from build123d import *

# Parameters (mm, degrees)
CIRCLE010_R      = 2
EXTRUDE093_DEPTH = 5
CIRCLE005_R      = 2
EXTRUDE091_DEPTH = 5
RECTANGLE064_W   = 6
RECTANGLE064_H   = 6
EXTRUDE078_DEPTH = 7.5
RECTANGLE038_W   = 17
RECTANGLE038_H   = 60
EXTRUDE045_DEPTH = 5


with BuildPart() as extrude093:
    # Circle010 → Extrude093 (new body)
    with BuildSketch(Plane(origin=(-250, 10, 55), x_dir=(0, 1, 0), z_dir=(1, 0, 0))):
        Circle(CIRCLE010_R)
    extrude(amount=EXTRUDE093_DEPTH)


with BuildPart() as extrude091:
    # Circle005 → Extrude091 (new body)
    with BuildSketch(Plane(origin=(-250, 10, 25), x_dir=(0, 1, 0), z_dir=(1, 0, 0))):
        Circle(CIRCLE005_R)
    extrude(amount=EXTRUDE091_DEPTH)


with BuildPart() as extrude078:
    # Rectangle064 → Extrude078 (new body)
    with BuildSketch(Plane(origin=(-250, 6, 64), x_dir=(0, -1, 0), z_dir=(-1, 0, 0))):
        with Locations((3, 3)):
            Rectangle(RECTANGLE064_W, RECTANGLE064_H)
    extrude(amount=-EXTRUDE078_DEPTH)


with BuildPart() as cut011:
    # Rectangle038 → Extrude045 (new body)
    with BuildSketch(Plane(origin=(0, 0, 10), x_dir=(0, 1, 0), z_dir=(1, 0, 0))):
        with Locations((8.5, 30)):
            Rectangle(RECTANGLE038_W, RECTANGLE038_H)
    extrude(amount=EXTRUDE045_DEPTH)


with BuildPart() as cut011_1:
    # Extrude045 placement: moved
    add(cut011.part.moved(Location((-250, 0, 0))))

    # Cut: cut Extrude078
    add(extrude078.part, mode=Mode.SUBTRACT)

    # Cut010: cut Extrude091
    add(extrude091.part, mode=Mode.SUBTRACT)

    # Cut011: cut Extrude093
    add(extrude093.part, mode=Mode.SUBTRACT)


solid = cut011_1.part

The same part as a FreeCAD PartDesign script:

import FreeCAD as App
import Part
import Sketcher
from FreeCAD import Vector
Q = App.Units.Quantity

doc = App.newDocument("Part")
params = doc.addObject("Spreadsheet::Sheet", "Params")
for row, (alias, value) in enumerate([
    ("sketch1_diameter", "4 mm"),
    ("pad1_length", "5 mm"),
    ("sketch2_diameter", "4 mm"),
    ("pad2_length", "5 mm"),
    ("sketch3_width", "6 mm"),
    ("pad3_length", "7.5 mm"),
    ("sketch4_width", "17 mm"),
    ("sketch4_height", "60 mm"),
    ("pad4_length", "5 mm"),
], start=1):
    params.set(f"A{row}", alias)
    params.set(f"B{row}", "=" + value)
    params.setAlias(f"B{row}", alias)

body = doc.addObject("PartDesign::Body", "Body")

# Sketch on YZ plane
sketch1 = body.newObject("Sketcher::SketchObject", "Sketch")
sketch1.AttachmentSupport = (doc.getObject("YZ_Plane"), [""])
sketch1.MapMode = "FlatFace"
sketch1.AttachmentOffset = App.Placement(Vector(0, 0, -250), App.Rotation())
sketch1.addGeometry(Part.Circle(Vector(10, 55, 0), Vector(0, 0, 1), 2), False)
sketch1.addConstraint([
    Sketcher.Constraint("Diameter", 0, Q("4 mm")),
    Sketcher.Constraint("DistanceX", -1, 1, 0, 3, Q("10 mm")),
    Sketcher.Constraint("DistanceY", -1, 1, 0, 3, Q("55 mm")),
])
sketch1.setExpression("Constraints[0]", "Params.sketch1_diameter")
pad1 = body.newObject("PartDesign::Pad", "Pad")
pad1.Profile = sketch1
pad1.setExpression("Length", "Params.pad1_length")
body2 = doc.addObject("PartDesign::Body", "Body001")

# Sketch on YZ plane
sketch2 = body2.newObject("Sketcher::SketchObject", "Sketch001")
sketch2.AttachmentSupport = (doc.getObject("YZ_Plane001"), [""])
sketch2.MapMode = "FlatFace"
sketch2.AttachmentOffset = App.Placement(Vector(0, 0, -250), App.Rotation())
sketch2.addGeometry(Part.Circle(Vector(10, 25, 0), Vector(0, 0, 1), 2), False)
sketch2.addConstraint([
    Sketcher.Constraint("Diameter", 0, Q("4 mm")),
    Sketcher.Constraint("DistanceX", -1, 1, 0, 3, Q("10 mm")),
    Sketcher.Constraint("DistanceY", -1, 1, 0, 3, Q("25 mm")),
])
sketch2.setExpression("Constraints[0]", "Params.sketch2_diameter")
pad2 = body2.newObject("PartDesign::Pad", "Pad001")
pad2.Profile = sketch2
pad2.setExpression("Length", "Params.pad2_length")
body3 = doc.addObject("PartDesign::Body", "Body002")

# Sketch on YZ plane
sketch3 = body3.newObject("Sketcher::SketchObject", "Sketch002")
sketch3.AttachmentSupport = (doc.getObject("YZ_Plane002"), [""])
sketch3.MapMode = "FlatFace"
sketch3.AttachmentOffset = App.Placement(Vector(0, 0, -250), App.Rotation())
sketch3.addGeometry([
    Part.LineSegment(Vector(6, 70, 0), Vector(6, 64, 0)),
    Part.LineSegment(Vector(6, 64, 0), Vector(0, 64, 0)),
    Part.LineSegment(Vector(0, 64, 0), Vector(0, 70, 0)),
    Part.LineSegment(Vector(0, 70, 0), Vector(6, 70, 0)),
], False)
sketch3.addConstraint([
    Sketcher.Constraint("Coincident", 0, 2, 1, 1),
    Sketcher.Constraint("Coincident", 1, 2, 2, 1),
    Sketcher.Constraint("Coincident", 2, 2, 3, 1),
    Sketcher.Constraint("Coincident", 3, 2, 0, 1),
    Sketcher.Constraint("Vertical", 0),
    Sketcher.Constraint("Horizontal", 1),
    Sketcher.Constraint("Vertical", 2),
    Sketcher.Constraint("Horizontal", 3),
    Sketcher.Constraint("PointOnObject", 1, 2, -2),
    Sketcher.Constraint("Equal", 3, 0),
    Sketcher.Constraint("DistanceX", 1, 2, 1, 1, Q("6 mm")),
    Sketcher.Constraint("DistanceY", -1, 1, 0, 2, Q("64 mm")),
])
sketch3.setExpression("Constraints[10]", "Params.sketch3_width")
pad3 = body3.newObject("PartDesign::Pad", "Pad002")
pad3.Profile = sketch3
pad3.setExpression("Length", "Params.pad3_length")
body4 = doc.addObject("PartDesign::Body", "Body003")

# Sketch on YZ plane
sketch4 = body4.newObject("Sketcher::SketchObject", "Sketch003")
sketch4.AttachmentSupport = (doc.getObject("YZ_Plane003"), [""])
sketch4.MapMode = "FlatFace"
sketch4.addGeometry([
    Part.LineSegment(Vector(0, 70, 0), Vector(0, 10, 0)),
    Part.LineSegment(Vector(0, 10, 0), Vector(17, 10, 0)),
    Part.LineSegment(Vector(17, 10, 0), Vector(17, 70, 0)),
    Part.LineSegment(Vector(17, 70, 0), Vector(0, 70, 0)),
], False)
sketch4.addConstraint([
    Sketcher.Constraint("Coincident", 0, 2, 1, 1),
    Sketcher.Constraint("Coincident", 1, 2, 2, 1),
    Sketcher.Constraint("Coincident", 2, 2, 3, 1),
    Sketcher.Constraint("Coincident", 3, 2, 0, 1),
    Sketcher.Constraint("Vertical", 0),
    Sketcher.Constraint("Horizontal", 1),
    Sketcher.Constraint("Vertical", 2),
    Sketcher.Constraint("Horizontal", 3),
    Sketcher.Constraint("PointOnObject", 0, 2, -2),
    Sketcher.Constraint("DistanceX", 1, 1, 1, 2, Q("17 mm")),
    Sketcher.Constraint("DistanceY", 0, 2, 0, 1, Q("60 mm")),
    Sketcher.Constraint("DistanceY", -1, 1, 0, 2, Q("10 mm")),
])
sketch4.setExpression("Constraints[9]", "Params.sketch4_width")
sketch4.setExpression("Constraints[10]", "Params.sketch4_height")
pad4 = body4.newObject("PartDesign::Pad", "Pad003")
pad4.Profile = sketch4
pad4.setExpression("Length", "Params.pad4_length")
body5 = doc.addObject("PartDesign::Body", "Body004")
doc.recompute()

body4.Placement = App.Placement(Vector(-250, 0, 0), App.Rotation(Vector(0, 0, 1), 0))
boolean = body5.newObject("PartDesign::Boolean", "Boolean")
boolean.Type = "Fuse"
boolean.addObjects([body4])
doc.recompute()

boolean2 = body5.newObject("PartDesign::Boolean", "Boolean001")
boolean2.Type = "Cut"
boolean2.addObjects([body3])
doc.recompute()

boolean3 = body5.newObject("PartDesign::Boolean", "Boolean002")
boolean3.Type = "Cut"
boolean3.addObjects([body2])
doc.recompute()

boolean4 = body5.newObject("PartDesign::Boolean", "Boolean003")
boolean4.Type = "Cut"
boolean4.addObjects([body])

doc.recompute()
